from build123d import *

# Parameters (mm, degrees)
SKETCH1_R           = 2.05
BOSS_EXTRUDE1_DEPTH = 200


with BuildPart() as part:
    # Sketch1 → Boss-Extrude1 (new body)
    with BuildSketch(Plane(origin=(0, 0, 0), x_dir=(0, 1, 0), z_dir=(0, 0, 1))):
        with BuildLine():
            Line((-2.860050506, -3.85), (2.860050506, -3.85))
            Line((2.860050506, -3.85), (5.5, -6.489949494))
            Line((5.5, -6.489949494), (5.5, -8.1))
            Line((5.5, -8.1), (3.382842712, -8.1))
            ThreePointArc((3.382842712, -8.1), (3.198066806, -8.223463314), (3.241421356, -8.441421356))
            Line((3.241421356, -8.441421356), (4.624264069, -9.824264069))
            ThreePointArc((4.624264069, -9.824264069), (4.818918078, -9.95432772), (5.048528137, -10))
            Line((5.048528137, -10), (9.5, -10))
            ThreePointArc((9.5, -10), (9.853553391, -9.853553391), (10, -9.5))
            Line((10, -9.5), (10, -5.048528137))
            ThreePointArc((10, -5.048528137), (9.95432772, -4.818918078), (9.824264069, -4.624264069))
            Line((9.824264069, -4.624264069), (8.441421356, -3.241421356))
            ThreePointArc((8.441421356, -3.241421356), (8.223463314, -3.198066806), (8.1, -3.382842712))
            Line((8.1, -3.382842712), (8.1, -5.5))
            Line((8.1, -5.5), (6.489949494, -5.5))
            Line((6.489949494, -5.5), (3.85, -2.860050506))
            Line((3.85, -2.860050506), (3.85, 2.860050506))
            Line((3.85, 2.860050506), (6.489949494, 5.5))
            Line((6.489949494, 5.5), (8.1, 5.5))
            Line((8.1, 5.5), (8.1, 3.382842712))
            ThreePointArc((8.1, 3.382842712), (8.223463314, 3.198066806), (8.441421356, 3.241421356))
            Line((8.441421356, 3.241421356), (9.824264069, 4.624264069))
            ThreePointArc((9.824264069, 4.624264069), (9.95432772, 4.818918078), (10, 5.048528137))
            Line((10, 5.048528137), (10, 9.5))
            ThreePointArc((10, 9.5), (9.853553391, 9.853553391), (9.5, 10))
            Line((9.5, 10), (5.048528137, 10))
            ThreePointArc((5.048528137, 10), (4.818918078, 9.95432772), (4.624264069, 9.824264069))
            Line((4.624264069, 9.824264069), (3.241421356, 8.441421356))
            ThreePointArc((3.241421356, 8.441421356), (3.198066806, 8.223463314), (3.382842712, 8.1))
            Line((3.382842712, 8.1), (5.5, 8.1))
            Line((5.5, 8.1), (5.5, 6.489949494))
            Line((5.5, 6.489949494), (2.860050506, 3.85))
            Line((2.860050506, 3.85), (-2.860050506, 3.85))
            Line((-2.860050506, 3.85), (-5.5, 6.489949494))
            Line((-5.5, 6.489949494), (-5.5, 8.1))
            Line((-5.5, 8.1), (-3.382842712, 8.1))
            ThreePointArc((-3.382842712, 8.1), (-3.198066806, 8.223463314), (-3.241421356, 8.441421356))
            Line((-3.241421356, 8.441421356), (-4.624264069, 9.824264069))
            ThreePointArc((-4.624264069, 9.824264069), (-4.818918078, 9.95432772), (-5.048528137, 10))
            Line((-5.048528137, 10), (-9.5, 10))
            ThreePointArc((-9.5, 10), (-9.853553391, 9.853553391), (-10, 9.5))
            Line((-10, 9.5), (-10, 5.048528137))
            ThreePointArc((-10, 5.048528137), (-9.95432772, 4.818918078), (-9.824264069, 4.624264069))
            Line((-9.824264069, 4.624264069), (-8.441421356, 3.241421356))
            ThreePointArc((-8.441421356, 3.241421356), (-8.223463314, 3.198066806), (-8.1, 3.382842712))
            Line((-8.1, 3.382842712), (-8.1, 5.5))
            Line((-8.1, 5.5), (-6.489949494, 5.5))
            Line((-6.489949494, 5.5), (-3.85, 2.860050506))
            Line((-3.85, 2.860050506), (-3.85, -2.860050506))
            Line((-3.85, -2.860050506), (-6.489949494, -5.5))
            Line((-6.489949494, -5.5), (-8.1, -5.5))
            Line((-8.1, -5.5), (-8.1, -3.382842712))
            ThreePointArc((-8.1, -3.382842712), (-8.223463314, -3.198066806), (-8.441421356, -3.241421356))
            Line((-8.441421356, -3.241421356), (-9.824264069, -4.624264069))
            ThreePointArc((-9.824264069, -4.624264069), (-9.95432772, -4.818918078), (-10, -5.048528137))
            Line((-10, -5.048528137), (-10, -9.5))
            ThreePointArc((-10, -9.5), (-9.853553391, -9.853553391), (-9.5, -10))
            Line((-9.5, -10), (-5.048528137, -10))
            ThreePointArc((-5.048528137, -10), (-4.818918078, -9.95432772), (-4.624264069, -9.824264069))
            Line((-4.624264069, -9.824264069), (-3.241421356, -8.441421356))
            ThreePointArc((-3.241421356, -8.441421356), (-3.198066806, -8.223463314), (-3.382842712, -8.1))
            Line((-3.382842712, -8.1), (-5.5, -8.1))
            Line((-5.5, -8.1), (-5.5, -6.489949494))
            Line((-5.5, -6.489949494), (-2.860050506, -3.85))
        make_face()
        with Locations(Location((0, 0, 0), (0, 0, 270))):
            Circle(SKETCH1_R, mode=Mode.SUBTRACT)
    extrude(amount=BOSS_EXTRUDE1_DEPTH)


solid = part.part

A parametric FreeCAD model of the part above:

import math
import FreeCAD as App
import Part
import Sketcher

V = App.Vector
Q = App.Units.Quantity

doc = App.newDocument("Part")
params = doc.addObject("Spreadsheet::Sheet", "Params")
for row, (alias, value) in enumerate([
    ("sketch1_diameter", "4.1 mm"),
    ("sketch1_radius", "0.2 mm"),
    ("sketch1_radius2", "0.6 mm"),
    ("sketch1_radius3", "0.5 mm"),
    ("pad1_length", "200 mm"),
], start=1):
    params.set(f"A{row}", alias)
    params.set(f"B{row}", "=" + value)
    params.setAlias(f"B{row}", alias)

body = doc.addObject("PartDesign::Body", "Body")

sketch1 = body.newObject("Sketcher::SketchObject", "Sketch")
sketch1.AttachmentSupport = (doc.getObject("XY_Plane"), [""])
sketch1.MapMode = "FlatFace"
sketch1.addGeometry([
    Part.LineSegment(V(3.85, -2.86, 0), V(3.85, 2.86, 0)),
    Part.LineSegment(V(3.85, 2.86, 0), V(6.49, 5.5, 0)),
    Part.LineSegment(V(6.49, 5.5, 0), V(8.1, 5.5, 0)),
    Part.LineSegment(V(8.1, 5.5, 0), V(8.1, 3.38, 0)),
    Part.ArcOfCircle(Part.Circle(V(8.3, 3.38, 0), V(0, 0, 1), 0.2), math.radians(-180), math.radians(-45)),
    Part.LineSegment(V(8.44, 3.24, 0), V(9.82, 4.62, 0)),
    Part.ArcOfCircle(Part.Circle(V(9.4, 5.05, 0), V(0, 0, 1), 0.6), math.radians(-45), math.radians(0)),
    Part.LineSegment(V(10, 5.05, 0), V(10, 9.5, 0)),
    Part.ArcOfCircle(Part.Circle(V(9.5, 9.5, 0), V(0, 0, 1), 0.5), math.radians(0), math.radians(90)),
    Part.LineSegment(V(9.5, 10, 0), V(5.05, 10, 0)),
    Part.ArcOfCircle(Part.Circle(V(5.05, 9.4, 0), V(0, 0, 1), 0.6), math.radians(90), math.radians(135)),
    Part.LineSegment(V(4.62, 9.82, 0), V(3.24, 8.44, 0)),
    Part.ArcOfCircle(Part.Circle(V(3.38, 8.3, 0), V(0, 0, 1), 0.2), math.radians(135), math.radians(270)),
    Part.LineSegment(V(3.38, 8.1, 0), V(5.5, 8.1, 0)),
    Part.LineSegment(V(5.5, 8.1, 0), V(5.5, 6.49, 0)),
    Part.LineSegment(V(5.5, 6.49, 0), V(2.86, 3.85, 0)),
    Part.LineSegment(V(2.86, 3.85, 0), V(-2.86, 3.85, 0)),
    Part.LineSegment(V(-2.86, 3.85, 0), V(-5.5, 6.49, 0)),
    Part.LineSegment(V(-5.5, 6.49, 0), V(-5.5, 8.1, 0)),
    Part.LineSegment(V(-5.5, 8.1, 0), V(-3.38, 8.1, 0)),
    Part.ArcOfCircle(Part.Circle(V(-3.38, 8.3, 0), V(0, 0, 1), 0.2), math.radians(-90), math.radians(45)),
    Part.LineSegment(V(-3.24, 8.44, 0), V(-4.62, 9.82, 0)),
    Part.ArcOfCircle(Part.Circle(V(-5.05, 9.4, 0), V(0, 0, 1), 0.6), math.radians(45), math.radians(90)),
    Part.LineSegment(V(-5.05, 10, 0), V(-9.5, 10, 0)),
    Part.ArcOfCircle(Part.Circle(V(-9.5, 9.5, 0), V(0, 0, 1), 0.5), math.radians(90), math.radians(180)),
    Part.LineSegment(V(-10, 9.5, 0), V(-10, 5.05, 0)),
    Part.ArcOfCircle(Part.Circle(V(-9.4, 5.05, 0), V(0, 0, 1), 0.6), math.radians(180), math.radians(225)),
    Part.LineSegment(V(-9.82, 4.62, 0), V(-8.44, 3.24, 0)),
    Part.ArcOfCircle(Part.Circle(V(-8.3, 3.38, 0), V(0, 0, 1), 0.2), math.radians(-135), math.radians(0)),
    Part.LineSegment(V(-8.1, 3.38, 0), V(-8.1, 5.5, 0)),
    Part.LineSegment(V(-8.1, 5.5, 0), V(-6.49, 5.5, 0)),
    Part.LineSegment(V(-6.49, 5.5, 0), V(-3.85, 2.86, 0)),
    Part.LineSegment(V(-3.85, 2.86, 0), V(-3.85, -2.86, 0)),
    Part.LineSegment(V(-3.85, -2.86, 0), V(-6.49, -5.5, 0)),
    Part.LineSegment(V(-6.49, -5.5, 0), V(-8.1, -5.5, 0)),
    Part.LineSegment(V(-8.1, -5.5, 0), V(-8.1, -3.38, 0)),
    Part.ArcOfCircle(Part.Circle(V(-8.3, -3.38, 0), V(0, 0, 1), 0.2), math.radians(0), math.radians(135)),
    Part.LineSegment(V(-8.44, -3.24, 0), V(-9.82, -4.62, 0)),
    Part.ArcOfCircle(Part.Circle(V(-9.4, -5.05, 0), V(0, 0, 1), 0.6), math.radians(135), math.radians(180)),
    Part.LineSegment(V(-10, -5.05, 0), V(-10, -9.5, 0)),
    Part.ArcOfCircle(Part.Circle(V(-9.5, -9.5, 0), V(0, 0, 1), 0.5), math.radians(180), math.radians(270)),
    Part.LineSegment(V(-9.5, -10, 0), V(-5.05, -10, 0)),
    Part.ArcOfCircle(Part.Circle(V(-5.05, -9.4, 0), V(0, 0, 1), 0.6), math.radians(-90), math.radians(-45)),
    Part.LineSegment(V(-4.62, -9.82, 0), V(-3.24, -8.44, 0)),
    Part.ArcOfCircle(Part.Circle(V(-3.38, -8.3, 0), V(0, 0, 1), 0.2), math.radians(-45), math.radians(90)),
    Part.LineSegment(V(-3.38, -8.1, 0), V(-5.5, -8.1, 0)),
    Part.LineSegment(V(-5.5, -8.1, 0), V(-5.5, -6.49, 0)),
    Part.LineSegment(V(-5.5, -6.49, 0), V(-2.86, -3.85, 0)),
    Part.LineSegment(V(-2.86, -3.85, 0), V(2.86, -3.85, 0)),
    Part.LineSegment(V(2.86, -3.85, 0), V(5.5, -6.49, 0)),
    Part.LineSegment(V(5.5, -6.49, 0), V(5.5, -8.1, 0)),
    Part.LineSegment(V(5.5, -8.1, 0), V(3.38, -8.1, 0)),
    Part.ArcOfCircle(Part.Circle(V(3.38, -8.3, 0), V(0, 0, 1), 0.2), math.radians(90), math.radians(225)),
    Part.LineSegment(V(3.24, -8.44, 0), V(4.62, -9.82, 0)),
    Part.ArcOfCircle(Part.Circle(V(5.05, -9.4, 0), V(0, 0, 1), 0.6), math.radians(-135), math.radians(-90)),
    Part.LineSegment(V(5.05, -10, 0), V(9.5, -10, 0)),
    Part.ArcOfCircle(Part.Circle(V(9.5, -9.5, 0), V(0, 0, 1), 0.5), math.radians(-90), math.radians(0)),
    Part.LineSegment(V(10, -9.5, 0), V(10, -5.05, 0)),
    Part.ArcOfCircle(Part.Circle(V(9.4, -5.05, 0), V(0, 0, 1), 0.6), math.radians(0), math.radians(45)),
    Part.LineSegment(V(9.82, -4.62, 0), V(8.44, -3.24, 0)),
    Part.ArcOfCircle(Part.Circle(V(8.3, -3.38, 0), V(0, 0, 1), 0.2), math.radians(45), math.radians(180)),
    Part.LineSegment(V(8.1, -3.38, 0), V(8.1, -5.5, 0)),
    Part.LineSegment(V(8.1, -5.5, 0), V(6.49, -5.5, 0)),
    Part.LineSegment(V(6.49, -5.5, 0), V(3.85, -2.86, 0)),
    Part.Circle(V(0, 0, 0), V(0, 0, 1), 2.05),
], False)
sketch1.addConstraint([
    Sketcher.Constraint("Coincident", 0, 2, 1, 1),
    Sketcher.Constraint("Coincident", 1, 2, 2, 1),
    Sketcher.Constraint("Coincident", 2, 2, 3, 1),
    Sketcher.Constraint("Tangent", 3, 2, 4, 1),
    Sketcher.Constraint("Tangent", 4, 2, 5, 1),
    Sketcher.Constraint("Tangent", 5, 2, 6, 1),
    Sketcher.Constraint("Tangent", 6, 2, 7, 1),
    Sketcher.Constraint("Tangent", 7, 2, 8, 1),
    Sketcher.Constraint("Tangent", 8, 2, 9, 1),
    Sketcher.Constraint("Tangent", 9, 2, 10, 1),
    Sketcher.Constraint("Tangent", 10, 2, 11, 1),
    Sketcher.Constraint("Tangent", 11, 2, 12, 1),
    Sketcher.Constraint("Tangent", 12, 2, 13, 1),
    Sketcher.Constraint("Coincident", 13, 2, 14, 1),
    Sketcher.Constraint("Coincident", 14, 2, 15, 1),
    Sketcher.Constraint("Coincident", 15, 2, 16, 1),
    Sketcher.Constraint("Coincident", 16, 2, 17, 1),
    Sketcher.Constraint("Coincident", 17, 2, 18, 1),
    Sketcher.Constraint("Coincident", 18, 2, 19, 1),
    Sketcher.Constraint("Tangent", 19, 2, 20, 1),
    Sketcher.Constraint("Tangent", 20, 2, 21, 1),
    Sketcher.Constraint("Tangent", 21, 2, 22, 1),
    Sketcher.Constraint("Tangent", 22, 2, 23, 1),
    Sketcher.Constraint("Tangent", 23, 2, 24, 1),
    Sketcher.Constraint("Tangent", 24, 2, 25, 1),
    Sketcher.Constraint("Tangent", 25, 2, 26, 1),
    Sketcher.Constraint("Tangent", 26, 2, 27, 1),
    Sketcher.Constraint("Tangent", 27, 2, 28, 1),
    Sketcher.Constraint("Tangent", 28, 2, 29, 1),
    Sketcher.Constraint("Coincident", 29, 2, 30, 1),
    Sketcher.Constraint("Coincident", 30, 2, 31, 1),
    Sketcher.Constraint("Coincident", 31, 2, 32, 1),
    Sketcher.Constraint("Coincident", 32, 2, 33, 1),
    Sketcher.Constraint("Coincident", 33, 2, 34, 1),
    Sketcher.Constraint("Coincident", 34, 2, 35, 1),
    Sketcher.Constraint("Tangent", 35, 2, 36, 1),
    Sketcher.Constraint("Tangent", 36, 2, 37, 1),
    Sketcher.Constraint("Tangent", 37, 2, 38, 1),
    Sketcher.Constraint("Tangent", 38, 2, 39, 1),
    Sketcher.Constraint("Tangent", 39, 2, 40, 1),
    Sketcher.Constraint("Tangent", 40, 2, 41, 1),
    Sketcher.Constraint("Tangent", 41, 2, 42, 1),
    Sketcher.Constraint("Tangent", 42, 2, 43, 1),
    Sketcher.Constraint("Tangent", 43, 2, 44, 1),
    Sketcher.Constraint("Tangent", 44, 2, 45, 1),
    Sketcher.Constraint("Coincident", 45, 2, 46, 1),
    Sketcher.Constraint("Coincident", 46, 2, 47, 1),
    Sketcher.Constraint("Coincident", 47, 2, 48, 1),
    Sketcher.Constraint("Coincident", 48, 2, 49, 1),
    Sketcher.Constraint("Coincident", 49, 2, 50, 1),
    Sketcher.Constraint("Coincident", 50, 2, 51, 1),
    Sketcher.Constraint("Tangent", 51, 2, 52, 1),
    Sketcher.Constraint("Tangent", 52, 2, 53, 1),
    Sketcher.Constraint("Tangent", 53, 2, 54, 1),
    Sketcher.Constraint("Tangent", 54, 2, 55, 1),
    Sketcher.Constraint("Tangent", 55, 2, 56, 1),
    Sketcher.Constraint("Tangent", 56, 2, 57, 1),
    Sketcher.Constraint("Tangent", 57, 2, 58, 1),
    Sketcher.Constraint("Tangent", 58, 2, 59, 1),
    Sketcher.Constraint("Tangent", 59, 2, 60, 1),
    Sketcher.Constraint("Tangent", 60, 2, 61, 1),
    Sketcher.Constraint("Coincident", 61, 2, 62, 1),
    Sketcher.Constraint("Coincident", 62, 2, 63, 1),
    Sketcher.Constraint("Coincident", 63, 2, 0, 1),
    Sketcher.Constraint("Vertical", 0),
    Sketcher.Constraint("Horizontal", 2),
    Sketcher.Constraint("Vertical", 3),
    Sketcher.Constraint("Vertical", 7),
    Sketcher.Constraint("Horizontal", 9),
    Sketcher.Constraint("Horizontal", 13),
    Sketcher.Constraint("Vertical", 14),
    Sketcher.Constraint("Horizontal", 16),
    Sketcher.Constraint("Vertical", 18),
    Sketcher.Constraint("Horizontal", 19),
    Sketcher.Constraint("Horizontal", 23),
    Sketcher.Constraint("Vertical", 25),
    Sketcher.Constraint("Vertical", 29),
    Sketcher.Constraint("Horizontal", 30),
    Sketcher.Constraint("Vertical", 32),
    Sketcher.Constraint("Horizontal", 34),
    Sketcher.Constraint("Vertical", 35),
    Sketcher.Constraint("Vertical", 39),
    Sketcher.Constraint("Horizontal", 41),
    Sketcher.Constraint("Horizontal", 45),
    Sketcher.Constraint("Vertical", 46),
    Sketcher.Constraint("Horizontal", 48),
    Sketcher.Constraint("Vertical", 50),
    Sketcher.Constraint("Horizontal", 51),
    Sketcher.Constraint("Horizontal", 55),
    Sketcher.Constraint("Vertical", 57),
    Sketcher.Constraint("Vertical", 61),
    Sketcher.Constraint("Horizontal", 62),
    Sketcher.Constraint("Coincident", 64, 3, -1, 1),
    Sketcher.Constraint("Equal", 6, 10),
    Sketcher.Constraint("Equal", 4, 12),
    Sketcher.Constraint("Equal", 12, 20),
    Sketcher.Constraint("Equal", 10, 22),
    Sketcher.Constraint("Equal", 8, 24),
    Sketcher.Constraint("Equal", 22, 26),
    Sketcher.Constraint("Equal", 20, 28),
    Sketcher.Constraint("Equal", 28, 36),
    Sketcher.Constraint("Equal", 26, 38),
    Sketcher.Constraint("Equal", 24, 40),
    Sketcher.Constraint("Equal", 38, 42),
    Sketcher.Constraint("Equal", 36, 44),
    Sketcher.Constraint("Equal", 44, 52),
    Sketcher.Constraint("Equal", 42, 54),
    Sketcher.Constraint("Equal", 40, 56),
    Sketcher.Constraint("Equal", 54, 58),
    Sketcher.Constraint("Equal", 52, 60),
    Sketcher.Constraint("Symmetric", 4, 3, 36, 3, -1, 1),
    Sketcher.Constraint("Symmetric", 6, 3, 38, 3, -1, 1),
    Sketcher.Constraint("Symmetric", 10, 3, 42, 3, -1, 1),
    Sketcher.Constraint("Symmetric", 12, 3, 44, 3, -1, 1),
    Sketcher.Constraint("Symmetric", 20, 3, 52, 3, -1, 1),
    Sketcher.Constraint("Symmetric", 22, 3, 54, 3, -1, 1),
    Sketcher.Constraint("Symmetric", 26, 3, 58, 3, -1, 1),
    Sketcher.Constraint("Symmetric", 28, 3, 60, 3, -1, 1),
    Sketcher.Constraint("Symmetric", 0, 2, 32, 2, -1, 1),
    Sketcher.Constraint("Symmetric", 1, 2, 33, 2, -1, 1),
    Sketcher.Constraint("Symmetric", 14, 2, 46, 2, -1, 1),
    Sketcher.Constraint("Symmetric", 15, 2, 47, 2, -1, 1),
    Sketcher.Constraint("Symmetric", 17, 2, 49, 2, -1, 1),
    Sketcher.Constraint("Symmetric", 30, 2, 62, 2, -1, 1),
    Sketcher.Constraint("Symmetric", 12, 3, 20, 3, -2),
    Sketcher.Constraint("Symmetric", 10, 3, 22, 3, -2),
    Sketcher.Constraint("Symmetric", 6, 3, 26, 3, -2),
    Sketcher.Constraint("Symmetric", 4, 3, 28, 3, -2),
    Sketcher.Constraint("Symmetric", 14, 2, 17, 2, -2),
    Sketcher.Constraint("Symmetric", 1, 2, 30, 2, -2),
    Sketcher.Constraint("Parallel", 1, 5),
    Sketcher.Constraint("Parallel", 5, 11),
    Sketcher.Constraint("Parallel", 11, 15),
    Sketcher.Constraint("Perpendicular", 15, 17),
    Sketcher.Constraint("Parallel", 17, 21),
    Sketcher.Constraint("Parallel", 27, 31),
    Sketcher.Constraint("Perpendicular", 47, 49),
    Sketcher.Constraint("Parallel", 59, 63),
    Sketcher.Constraint("Equal", 48, 0),
    Sketcher.Constraint("Equal", 51, 3),
    Sketcher.Constraint("Equal", 55, 7),
    Sketcher.Constraint("Equal", 62, 14),
    Sketcher.Constraint("Equal", 5, 11),
    Sketcher.Constraint("Equal", 1, 15),
    Sketcher.Constraint("Diameter", 64, Q("4.1 mm")),
    Sketcher.Constraint("Radius", 4, Q("0.2 mm")),
    Sketcher.Constraint("Radius", 6, Q("0.6 mm")),
    Sketcher.Constraint("Radius", 8, Q("0.5 mm")),
    Sketcher.Constraint("DistanceX", -1, 1, 6, 2, Q("10 mm")),
    Sketcher.Constraint("DistanceX", -1, 1, 4, 3, Q("8.3 mm")),
    Sketcher.Constraint("DistanceY", -1, 1, 1, 2, Q("5.5 mm")),
    Sketcher.Constraint("DistanceX", -1, 1, 0, 2, Q("3.85 mm")),
    Sketcher.Constraint("DistanceX", 16, 2, 16, 1, Q("5.720101 mm")),
    Sketcher.Constraint("DistanceX", 9, 2, 9, 1, Q("4.451472 mm")),
])
sketch1.setExpression("Constraints[144]", "Params.sketch1_diameter")
sketch1.setExpression("Constraints[145]", "Params.sketch1_radius")
sketch1.setExpression("Constraints[146]", "Params.sketch1_radius2")
sketch1.setExpression("Constraints[147]", "Params.sketch1_radius3")
pad1 = body.newObject("PartDesign::Pad", "Pad")
pad1.Profile = sketch1
pad1.setExpression("Length", "Params.pad1_length")

doc.recompute()
